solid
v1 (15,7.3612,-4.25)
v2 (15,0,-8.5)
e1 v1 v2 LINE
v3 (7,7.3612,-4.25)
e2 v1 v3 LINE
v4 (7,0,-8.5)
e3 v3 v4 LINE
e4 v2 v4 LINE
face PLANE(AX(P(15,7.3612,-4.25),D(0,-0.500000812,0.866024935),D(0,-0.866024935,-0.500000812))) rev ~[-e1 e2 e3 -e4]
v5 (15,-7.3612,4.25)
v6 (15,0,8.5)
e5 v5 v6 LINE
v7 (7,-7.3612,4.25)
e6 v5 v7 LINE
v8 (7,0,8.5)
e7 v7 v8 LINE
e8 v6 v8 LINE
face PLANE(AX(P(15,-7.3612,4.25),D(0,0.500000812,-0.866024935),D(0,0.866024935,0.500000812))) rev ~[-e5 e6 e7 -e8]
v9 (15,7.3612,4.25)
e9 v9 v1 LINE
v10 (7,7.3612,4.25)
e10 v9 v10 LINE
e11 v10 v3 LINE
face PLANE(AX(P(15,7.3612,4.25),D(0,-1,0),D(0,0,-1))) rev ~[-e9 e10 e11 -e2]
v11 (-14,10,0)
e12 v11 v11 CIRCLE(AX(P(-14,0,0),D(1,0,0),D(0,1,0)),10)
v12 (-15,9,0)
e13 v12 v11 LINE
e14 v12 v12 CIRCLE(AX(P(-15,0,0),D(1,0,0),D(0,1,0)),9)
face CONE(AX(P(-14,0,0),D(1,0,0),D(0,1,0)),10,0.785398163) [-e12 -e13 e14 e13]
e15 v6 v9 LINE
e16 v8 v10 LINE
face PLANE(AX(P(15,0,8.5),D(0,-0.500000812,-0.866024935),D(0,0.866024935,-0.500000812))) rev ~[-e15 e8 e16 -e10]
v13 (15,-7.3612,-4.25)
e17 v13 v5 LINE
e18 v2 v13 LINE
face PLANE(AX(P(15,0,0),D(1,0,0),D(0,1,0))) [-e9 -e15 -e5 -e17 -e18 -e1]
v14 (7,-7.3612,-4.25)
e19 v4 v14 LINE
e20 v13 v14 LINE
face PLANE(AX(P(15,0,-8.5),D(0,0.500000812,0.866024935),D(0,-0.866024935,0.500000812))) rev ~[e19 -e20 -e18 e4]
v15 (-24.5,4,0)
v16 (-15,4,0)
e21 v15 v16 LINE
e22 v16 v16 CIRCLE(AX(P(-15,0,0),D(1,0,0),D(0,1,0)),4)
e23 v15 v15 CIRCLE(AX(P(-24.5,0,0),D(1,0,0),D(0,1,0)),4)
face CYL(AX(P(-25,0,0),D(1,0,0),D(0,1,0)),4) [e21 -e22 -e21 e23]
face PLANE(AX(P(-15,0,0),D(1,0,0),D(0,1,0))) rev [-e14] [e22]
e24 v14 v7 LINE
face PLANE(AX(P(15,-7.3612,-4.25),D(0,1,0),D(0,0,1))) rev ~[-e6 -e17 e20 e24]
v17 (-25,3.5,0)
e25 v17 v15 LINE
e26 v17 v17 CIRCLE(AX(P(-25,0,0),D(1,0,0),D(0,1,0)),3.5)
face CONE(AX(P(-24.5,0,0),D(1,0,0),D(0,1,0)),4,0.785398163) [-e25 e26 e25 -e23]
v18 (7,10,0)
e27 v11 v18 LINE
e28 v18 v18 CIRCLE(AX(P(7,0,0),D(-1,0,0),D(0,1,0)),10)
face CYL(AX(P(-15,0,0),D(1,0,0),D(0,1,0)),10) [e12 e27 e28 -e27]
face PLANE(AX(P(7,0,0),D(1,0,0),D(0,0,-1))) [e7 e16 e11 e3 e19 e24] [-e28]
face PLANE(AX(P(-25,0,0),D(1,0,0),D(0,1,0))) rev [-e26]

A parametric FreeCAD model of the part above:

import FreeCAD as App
import Part
import Sketcher

V = App.Vector
Q = App.Units.Quantity


def edges_at(feature, points):
    """Names of the edges that pass closest to the given points."""
    edges = feature.Shape.Edges
    near = lambda p: min(range(len(edges)), key=lambda i: edges[i].distToShape(Part.Vertex(*p))[0])
    return sorted({f"Edge{near(p) + 1}" for p in points})


def add_polygon(sketch, points):
    """Adds a closed chain of lines whose ends are joined by coincident constraints."""
    first, n = sketch.GeometryCount, len(points)
    for a, b in zip(points, points[1:] + points[:1]):
        sketch.addGeometry(Part.LineSegment(App.Vector(*a, 0), App.Vector(*b, 0)), False)
    for i in range(n):
        sketch.addConstraint(Sketcher.Constraint("Coincident", first + i, 2, first + (i + 1) % n, 1))

doc = App.newDocument("Part")
params = doc.addObject("Spreadsheet::Sheet", "Params")
for row, (alias, value) in enumerate([
    ("sketch1_width", "30 mm"),
    ("sketch1_width2", "10 mm"),
    ("sketch1_height", "4 mm"),
    ("revolution_angle", "360 deg"),
    ("chamfer_size", "0.5 mm"),
    ("chamfer2_size", "1 mm"),
    ("sketch2_diameter", "20 mm"),
    ("sketch2_height", "8.5 mm"),
    ("pocket1_length", "8 mm"),
], start=1):
    params.set(f"A{row}", alias)
    params.set(f"B{row}", "=" + value)
    params.setAlias(f"B{row}", alias)

body = doc.addObject("PartDesign::Body", "Body")

# Sketch on XY plane
sketch1 = body.newObject("Sketcher::SketchObject", "Sketch")
sketch1.AttachmentSupport = (doc.getObject("XY_Plane"), [""])
sketch1.MapMode = "FlatFace"
add_polygon(sketch1, [(-25, 4), (-25, 0), (15, 0), (15, 10), (-15, 10), (-15, 4)])  # lines 0-5
sketch1.addConstraint([
    Sketcher.Constraint("Vertical", 0),
    Sketcher.Constraint("Horizontal", 1),
    Sketcher.Constraint("Vertical", 2),
    Sketcher.Constraint("Horizontal", 3),
    Sketcher.Constraint("Vertical", 4),
    Sketcher.Constraint("Horizontal", 5),
    Sketcher.Constraint("PointOnObject", 0, 2, -1),
    Sketcher.Constraint("Equal", 5, 2),
    Sketcher.Constraint("DistanceX", 3, 2, 3, 1, 30.0),
    Sketcher.Constraint("DistanceX", 5, 2, 5, 1, 10.0),
    Sketcher.Constraint("DistanceY", 0, 2, 0, 1, 4.0),
    Sketcher.Constraint("DistanceX", 0, 2, -1, 1, 25.0),
])
sketch1.setExpression("Constraints[14]", "Params.sketch1_width")
sketch1.setExpression("Constraints[15]", "Params.sketch1_width2")
sketch1.setExpression("Constraints[16]", "Params.sketch1_height")
revolution = body.newObject("PartDesign::Revolution", "Revolution")
revolution.Profile = sketch1
revolution.ReferenceAxis = (sketch1, ["H_Axis"])
revolution.setExpression("Angle", "Params.revolution_angle")
doc.recompute()

chamfer = body.newObject("PartDesign::Chamfer", "Chamfer")
chamfer.Base = (revolution, edges_at(revolution, [(-25, -4, 0)]))
chamfer.setExpression("Size", "Params.chamfer_size")
doc.recompute()

chamfer2 = body.newObject("PartDesign::Chamfer", "Chamfer001")
chamfer2.Base = (chamfer, edges_at(chamfer, [(-15, -10, 0)]))
chamfer2.setExpression("Size", "Params.chamfer2_size")

# Sketch on YZ plane
sketch2 = body.newObject("Sketcher::SketchObject", "Sketch001")
sketch2.AttachmentSupport = (doc.getObject("YZ_Plane"), [""])
sketch2.MapMode = "FlatFace"
sketch2.AttachmentOffset = App.Placement(V(0, 0, 15), App.Rotation())
sketch2.addGeometry(Part.Circle(V(0, 0, 0), V(0, 0, 1), 10), False)  # 0
add_polygon(sketch2, [(-7.3612, 4.25), (0, 8.5), (7.3612, 4.25), (7.3612, -4.25), (0, -8.5), (-7.3612, -4.25)])  # lines 1-6
sketch2.addConstraint([
    Sketcher.Constraint("Vertical", 3),
    Sketcher.Constraint("Vertical", 6),
    Sketcher.Constraint("Coincident", 0, 3, -1, 1),
    Sketcher.Constraint("Symmetric", 1, 2, 4, 2, -1, 1),
    Sketcher.Constraint("Symmetric", 2, 2, 5, 2, -1, 1),
    Sketcher.Constraint("PointOnObject", 1, 2, -2),
    Sketcher.Constraint("Parallel", 1, 4),
    Sketcher.Constraint("Horizontal", 3, 2, 5, 2),
    Sketcher.Constraint("Diameter", 0, 20.0),
    Sketcher.Constraint("DistanceY", 4, 2, 1, 2, 17.0),
    Sketcher.Constraint("Angle", 1, Q("30 deg")),
    Sketcher.Constraint("DistanceY", 3, 2, 3, 1, 8.5),
])
sketch2.setExpression("Constraints[14]", "Params.sketch2_diameter")
sketch2.setExpression("Constraints[17]", "Params.sketch2_height")
pocket1 = body.newObject("PartDesign::Pocket", "Pocket")
pocket1.Profile = sketch2
pocket1.setExpression("Length", "Params.pocket1_length")

doc.recompute()
